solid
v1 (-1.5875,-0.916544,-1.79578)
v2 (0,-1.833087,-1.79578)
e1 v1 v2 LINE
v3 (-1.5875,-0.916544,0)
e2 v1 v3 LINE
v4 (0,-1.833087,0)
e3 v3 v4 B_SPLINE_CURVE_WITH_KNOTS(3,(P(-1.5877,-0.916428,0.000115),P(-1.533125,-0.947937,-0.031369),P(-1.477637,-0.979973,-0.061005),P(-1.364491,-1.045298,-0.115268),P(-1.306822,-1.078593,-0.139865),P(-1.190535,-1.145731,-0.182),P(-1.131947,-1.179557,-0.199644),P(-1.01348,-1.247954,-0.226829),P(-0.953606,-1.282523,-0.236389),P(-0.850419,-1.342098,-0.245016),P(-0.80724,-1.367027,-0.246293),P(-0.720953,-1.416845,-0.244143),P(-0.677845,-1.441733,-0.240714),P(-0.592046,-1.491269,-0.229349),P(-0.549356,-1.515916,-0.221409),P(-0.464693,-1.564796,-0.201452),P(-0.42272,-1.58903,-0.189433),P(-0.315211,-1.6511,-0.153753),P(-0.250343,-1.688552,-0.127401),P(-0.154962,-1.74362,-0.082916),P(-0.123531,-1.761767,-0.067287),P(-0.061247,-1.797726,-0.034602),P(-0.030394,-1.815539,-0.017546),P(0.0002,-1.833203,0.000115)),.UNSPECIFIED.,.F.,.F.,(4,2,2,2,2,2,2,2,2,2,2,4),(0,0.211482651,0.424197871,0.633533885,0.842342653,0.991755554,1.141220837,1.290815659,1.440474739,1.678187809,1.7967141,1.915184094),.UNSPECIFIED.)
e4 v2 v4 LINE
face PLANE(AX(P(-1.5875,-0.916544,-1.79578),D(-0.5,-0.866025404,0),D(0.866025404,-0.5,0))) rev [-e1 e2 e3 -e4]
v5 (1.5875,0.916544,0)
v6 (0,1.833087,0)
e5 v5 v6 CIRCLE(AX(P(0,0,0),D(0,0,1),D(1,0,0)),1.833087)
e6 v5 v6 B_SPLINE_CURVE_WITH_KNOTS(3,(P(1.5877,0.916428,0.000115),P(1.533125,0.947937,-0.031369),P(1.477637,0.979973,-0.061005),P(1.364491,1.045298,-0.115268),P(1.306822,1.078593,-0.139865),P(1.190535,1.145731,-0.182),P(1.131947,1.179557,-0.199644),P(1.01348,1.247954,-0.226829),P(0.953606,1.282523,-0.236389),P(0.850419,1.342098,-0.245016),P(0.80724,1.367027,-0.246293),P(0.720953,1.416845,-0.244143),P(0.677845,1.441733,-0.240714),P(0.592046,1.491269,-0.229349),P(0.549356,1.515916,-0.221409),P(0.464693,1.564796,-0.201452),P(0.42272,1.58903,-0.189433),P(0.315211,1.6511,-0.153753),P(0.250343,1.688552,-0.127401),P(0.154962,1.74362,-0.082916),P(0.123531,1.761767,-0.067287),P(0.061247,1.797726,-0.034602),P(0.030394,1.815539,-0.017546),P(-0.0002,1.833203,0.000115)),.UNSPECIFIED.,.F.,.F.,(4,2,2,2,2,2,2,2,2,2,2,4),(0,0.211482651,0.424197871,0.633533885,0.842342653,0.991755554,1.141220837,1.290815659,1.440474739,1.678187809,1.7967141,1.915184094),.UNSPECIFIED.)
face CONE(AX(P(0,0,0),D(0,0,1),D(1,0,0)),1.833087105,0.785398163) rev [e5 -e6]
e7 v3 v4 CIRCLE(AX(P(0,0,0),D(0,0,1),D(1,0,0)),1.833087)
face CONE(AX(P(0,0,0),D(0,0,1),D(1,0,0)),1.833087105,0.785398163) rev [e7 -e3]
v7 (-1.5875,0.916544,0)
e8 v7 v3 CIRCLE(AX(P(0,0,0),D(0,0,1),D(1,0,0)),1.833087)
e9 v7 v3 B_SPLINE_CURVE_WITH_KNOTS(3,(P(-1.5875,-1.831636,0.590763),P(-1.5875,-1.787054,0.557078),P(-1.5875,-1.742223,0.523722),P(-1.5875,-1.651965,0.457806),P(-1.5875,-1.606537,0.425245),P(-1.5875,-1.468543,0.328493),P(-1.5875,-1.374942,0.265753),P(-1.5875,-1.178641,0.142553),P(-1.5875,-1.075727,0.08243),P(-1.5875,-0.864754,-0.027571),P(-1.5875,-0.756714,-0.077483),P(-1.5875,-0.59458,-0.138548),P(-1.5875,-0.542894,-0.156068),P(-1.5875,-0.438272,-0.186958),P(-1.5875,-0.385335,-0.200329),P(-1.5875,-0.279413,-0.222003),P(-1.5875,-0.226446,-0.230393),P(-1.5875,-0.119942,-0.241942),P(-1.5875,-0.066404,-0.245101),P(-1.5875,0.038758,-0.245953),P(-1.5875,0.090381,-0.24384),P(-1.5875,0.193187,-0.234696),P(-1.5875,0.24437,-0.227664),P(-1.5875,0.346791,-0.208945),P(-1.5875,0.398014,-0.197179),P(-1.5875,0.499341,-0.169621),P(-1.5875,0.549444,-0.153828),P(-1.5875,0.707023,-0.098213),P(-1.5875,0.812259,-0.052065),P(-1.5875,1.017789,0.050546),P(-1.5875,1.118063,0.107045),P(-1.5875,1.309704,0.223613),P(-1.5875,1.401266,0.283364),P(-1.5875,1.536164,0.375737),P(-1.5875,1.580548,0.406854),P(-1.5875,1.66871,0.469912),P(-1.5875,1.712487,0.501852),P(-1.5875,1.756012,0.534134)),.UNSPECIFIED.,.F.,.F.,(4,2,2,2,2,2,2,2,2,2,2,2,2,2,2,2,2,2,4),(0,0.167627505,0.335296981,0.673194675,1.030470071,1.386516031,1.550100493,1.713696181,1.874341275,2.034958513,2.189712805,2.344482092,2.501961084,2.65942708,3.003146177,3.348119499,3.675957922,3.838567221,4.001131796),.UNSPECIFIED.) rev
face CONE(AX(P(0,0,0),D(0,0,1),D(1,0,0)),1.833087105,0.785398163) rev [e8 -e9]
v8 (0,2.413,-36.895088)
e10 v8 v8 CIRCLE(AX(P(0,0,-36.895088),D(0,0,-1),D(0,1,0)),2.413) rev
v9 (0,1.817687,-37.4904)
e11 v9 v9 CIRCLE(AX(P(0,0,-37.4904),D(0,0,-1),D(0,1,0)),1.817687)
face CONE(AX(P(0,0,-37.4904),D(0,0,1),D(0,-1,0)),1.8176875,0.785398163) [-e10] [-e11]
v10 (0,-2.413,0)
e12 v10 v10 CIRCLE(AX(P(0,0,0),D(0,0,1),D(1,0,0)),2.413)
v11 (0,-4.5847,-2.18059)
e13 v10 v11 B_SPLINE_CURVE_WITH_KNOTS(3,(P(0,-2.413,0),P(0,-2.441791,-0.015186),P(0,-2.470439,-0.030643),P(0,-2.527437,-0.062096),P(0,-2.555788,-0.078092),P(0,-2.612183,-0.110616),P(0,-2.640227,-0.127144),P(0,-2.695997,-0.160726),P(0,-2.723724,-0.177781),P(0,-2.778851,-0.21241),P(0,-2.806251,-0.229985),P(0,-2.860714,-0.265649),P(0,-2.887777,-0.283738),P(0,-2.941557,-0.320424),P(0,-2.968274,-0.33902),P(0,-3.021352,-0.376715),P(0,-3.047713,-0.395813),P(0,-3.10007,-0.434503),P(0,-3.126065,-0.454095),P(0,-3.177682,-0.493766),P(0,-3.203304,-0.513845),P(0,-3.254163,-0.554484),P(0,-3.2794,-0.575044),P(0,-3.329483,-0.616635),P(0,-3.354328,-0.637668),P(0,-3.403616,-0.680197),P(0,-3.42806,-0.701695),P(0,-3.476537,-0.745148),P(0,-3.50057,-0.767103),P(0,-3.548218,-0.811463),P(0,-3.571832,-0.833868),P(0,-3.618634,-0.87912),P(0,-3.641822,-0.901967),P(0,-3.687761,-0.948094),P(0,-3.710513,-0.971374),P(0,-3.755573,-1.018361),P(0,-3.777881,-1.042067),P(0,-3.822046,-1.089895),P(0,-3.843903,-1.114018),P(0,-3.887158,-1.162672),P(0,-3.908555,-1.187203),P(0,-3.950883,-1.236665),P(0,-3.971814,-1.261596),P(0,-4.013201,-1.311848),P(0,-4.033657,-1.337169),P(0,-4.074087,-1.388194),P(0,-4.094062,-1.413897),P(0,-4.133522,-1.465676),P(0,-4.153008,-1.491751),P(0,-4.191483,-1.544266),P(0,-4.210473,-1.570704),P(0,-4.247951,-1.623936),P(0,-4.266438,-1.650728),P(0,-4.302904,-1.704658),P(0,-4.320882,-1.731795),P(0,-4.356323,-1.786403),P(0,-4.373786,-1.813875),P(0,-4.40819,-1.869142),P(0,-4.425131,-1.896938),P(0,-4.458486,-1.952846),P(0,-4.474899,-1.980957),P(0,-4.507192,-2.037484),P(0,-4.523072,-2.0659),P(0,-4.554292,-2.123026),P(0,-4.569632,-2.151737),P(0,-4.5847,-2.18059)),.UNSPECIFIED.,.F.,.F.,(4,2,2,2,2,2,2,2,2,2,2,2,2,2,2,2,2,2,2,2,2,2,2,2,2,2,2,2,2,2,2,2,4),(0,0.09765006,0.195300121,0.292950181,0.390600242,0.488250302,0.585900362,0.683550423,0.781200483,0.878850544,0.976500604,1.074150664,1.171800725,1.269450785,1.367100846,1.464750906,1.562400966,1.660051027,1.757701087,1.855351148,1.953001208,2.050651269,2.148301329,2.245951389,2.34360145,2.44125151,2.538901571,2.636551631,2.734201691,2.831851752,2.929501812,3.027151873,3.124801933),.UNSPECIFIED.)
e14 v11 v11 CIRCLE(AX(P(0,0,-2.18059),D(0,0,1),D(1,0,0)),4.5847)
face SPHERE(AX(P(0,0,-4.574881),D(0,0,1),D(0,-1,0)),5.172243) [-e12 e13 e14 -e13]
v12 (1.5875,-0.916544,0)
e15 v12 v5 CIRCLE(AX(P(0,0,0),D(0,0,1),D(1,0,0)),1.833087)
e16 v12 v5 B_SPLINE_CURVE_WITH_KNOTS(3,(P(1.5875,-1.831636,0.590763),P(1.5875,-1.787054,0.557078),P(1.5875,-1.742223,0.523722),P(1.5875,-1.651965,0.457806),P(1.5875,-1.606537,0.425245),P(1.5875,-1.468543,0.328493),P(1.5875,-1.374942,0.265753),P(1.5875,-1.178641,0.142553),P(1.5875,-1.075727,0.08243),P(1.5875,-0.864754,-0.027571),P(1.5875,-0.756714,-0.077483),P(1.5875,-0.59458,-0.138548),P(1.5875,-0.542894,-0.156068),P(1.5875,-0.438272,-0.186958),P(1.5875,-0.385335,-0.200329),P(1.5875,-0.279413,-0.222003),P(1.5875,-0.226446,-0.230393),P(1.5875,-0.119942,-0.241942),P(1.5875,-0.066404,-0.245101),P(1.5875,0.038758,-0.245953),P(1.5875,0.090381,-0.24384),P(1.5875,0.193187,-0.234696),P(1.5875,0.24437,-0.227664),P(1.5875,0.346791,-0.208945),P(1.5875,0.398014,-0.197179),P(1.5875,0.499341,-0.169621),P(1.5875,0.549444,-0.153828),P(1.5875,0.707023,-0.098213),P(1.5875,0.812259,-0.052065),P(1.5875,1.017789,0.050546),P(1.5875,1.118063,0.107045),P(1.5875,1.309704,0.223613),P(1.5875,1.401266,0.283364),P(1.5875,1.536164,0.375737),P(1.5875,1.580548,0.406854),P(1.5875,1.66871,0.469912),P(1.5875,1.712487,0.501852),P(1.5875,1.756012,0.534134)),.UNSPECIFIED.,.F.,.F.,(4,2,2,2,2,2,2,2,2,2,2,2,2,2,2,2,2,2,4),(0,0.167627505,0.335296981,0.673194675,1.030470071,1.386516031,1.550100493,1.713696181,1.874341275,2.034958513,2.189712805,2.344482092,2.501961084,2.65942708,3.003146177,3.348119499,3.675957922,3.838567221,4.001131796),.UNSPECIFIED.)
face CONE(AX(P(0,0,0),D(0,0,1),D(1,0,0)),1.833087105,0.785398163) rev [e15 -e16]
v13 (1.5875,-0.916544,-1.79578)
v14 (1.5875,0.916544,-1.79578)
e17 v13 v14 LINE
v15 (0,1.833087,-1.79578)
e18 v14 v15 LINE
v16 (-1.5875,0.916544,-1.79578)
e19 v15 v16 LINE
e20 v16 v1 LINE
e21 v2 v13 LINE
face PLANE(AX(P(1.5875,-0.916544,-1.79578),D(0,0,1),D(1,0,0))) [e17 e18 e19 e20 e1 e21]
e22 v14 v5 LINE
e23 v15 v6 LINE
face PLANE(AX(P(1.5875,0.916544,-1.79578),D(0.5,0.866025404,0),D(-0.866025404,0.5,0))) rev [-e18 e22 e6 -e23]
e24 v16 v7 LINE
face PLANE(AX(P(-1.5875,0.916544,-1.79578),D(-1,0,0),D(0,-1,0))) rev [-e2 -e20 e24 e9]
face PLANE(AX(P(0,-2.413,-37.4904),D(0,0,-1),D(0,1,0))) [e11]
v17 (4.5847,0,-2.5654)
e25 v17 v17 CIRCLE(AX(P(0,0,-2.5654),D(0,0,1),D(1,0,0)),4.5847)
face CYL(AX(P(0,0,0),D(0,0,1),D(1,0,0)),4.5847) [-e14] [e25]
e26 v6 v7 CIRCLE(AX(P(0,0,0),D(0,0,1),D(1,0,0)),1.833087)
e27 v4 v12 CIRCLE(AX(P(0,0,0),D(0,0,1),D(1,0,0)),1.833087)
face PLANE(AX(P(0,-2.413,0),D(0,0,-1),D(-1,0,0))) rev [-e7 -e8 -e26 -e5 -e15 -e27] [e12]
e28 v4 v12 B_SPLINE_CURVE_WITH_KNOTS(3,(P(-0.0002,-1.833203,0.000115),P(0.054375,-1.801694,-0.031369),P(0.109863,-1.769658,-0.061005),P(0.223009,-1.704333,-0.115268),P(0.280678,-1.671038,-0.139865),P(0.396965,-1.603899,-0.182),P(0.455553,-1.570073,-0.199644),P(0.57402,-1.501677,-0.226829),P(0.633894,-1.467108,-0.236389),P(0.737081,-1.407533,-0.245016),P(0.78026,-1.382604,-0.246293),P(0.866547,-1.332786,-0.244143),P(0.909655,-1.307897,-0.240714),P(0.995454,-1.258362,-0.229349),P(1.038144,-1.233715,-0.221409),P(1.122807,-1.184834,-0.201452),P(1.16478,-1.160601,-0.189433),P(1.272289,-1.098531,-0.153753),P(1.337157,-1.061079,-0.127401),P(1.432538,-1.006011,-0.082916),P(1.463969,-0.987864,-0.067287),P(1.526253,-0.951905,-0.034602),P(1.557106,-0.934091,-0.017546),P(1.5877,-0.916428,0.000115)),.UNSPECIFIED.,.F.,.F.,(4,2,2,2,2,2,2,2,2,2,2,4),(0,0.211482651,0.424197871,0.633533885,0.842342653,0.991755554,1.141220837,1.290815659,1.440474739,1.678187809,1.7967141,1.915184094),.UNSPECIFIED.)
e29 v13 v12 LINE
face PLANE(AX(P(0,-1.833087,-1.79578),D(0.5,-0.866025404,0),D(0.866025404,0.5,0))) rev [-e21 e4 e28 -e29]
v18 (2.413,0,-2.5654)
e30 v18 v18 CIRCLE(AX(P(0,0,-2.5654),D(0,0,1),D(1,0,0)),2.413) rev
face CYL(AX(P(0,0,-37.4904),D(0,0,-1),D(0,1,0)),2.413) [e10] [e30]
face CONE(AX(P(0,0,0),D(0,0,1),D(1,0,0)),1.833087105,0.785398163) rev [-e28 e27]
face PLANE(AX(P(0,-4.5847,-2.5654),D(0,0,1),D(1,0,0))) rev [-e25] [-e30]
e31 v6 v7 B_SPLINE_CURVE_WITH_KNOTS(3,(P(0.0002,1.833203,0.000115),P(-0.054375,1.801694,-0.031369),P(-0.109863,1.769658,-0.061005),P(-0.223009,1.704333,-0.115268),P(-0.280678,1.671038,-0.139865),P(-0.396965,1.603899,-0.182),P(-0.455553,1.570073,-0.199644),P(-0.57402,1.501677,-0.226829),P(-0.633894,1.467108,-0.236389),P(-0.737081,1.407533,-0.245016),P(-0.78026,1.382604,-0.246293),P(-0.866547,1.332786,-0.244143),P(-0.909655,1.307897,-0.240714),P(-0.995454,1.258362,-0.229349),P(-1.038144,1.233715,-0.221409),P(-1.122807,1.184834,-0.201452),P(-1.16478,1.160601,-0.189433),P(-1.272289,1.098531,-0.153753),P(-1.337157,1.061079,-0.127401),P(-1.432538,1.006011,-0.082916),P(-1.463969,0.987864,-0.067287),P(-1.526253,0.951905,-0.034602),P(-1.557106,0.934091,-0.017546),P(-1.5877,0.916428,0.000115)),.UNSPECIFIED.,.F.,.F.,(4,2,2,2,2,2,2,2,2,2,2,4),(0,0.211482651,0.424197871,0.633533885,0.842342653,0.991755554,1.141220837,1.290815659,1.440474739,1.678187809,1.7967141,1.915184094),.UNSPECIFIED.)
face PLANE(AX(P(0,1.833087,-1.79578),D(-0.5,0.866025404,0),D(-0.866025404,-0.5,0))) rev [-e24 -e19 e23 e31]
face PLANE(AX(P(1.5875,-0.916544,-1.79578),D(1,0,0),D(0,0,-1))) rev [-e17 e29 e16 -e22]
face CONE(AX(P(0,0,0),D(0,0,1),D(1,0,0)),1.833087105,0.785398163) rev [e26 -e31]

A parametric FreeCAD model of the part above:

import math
import FreeCAD as App
import Part
import Sketcher
from FreeCAD import Vector
Q = App.Units.Quantity


def edges_at(feature, points):
    """Names of the edges that pass closest to the given points."""
    edges = feature.Shape.Edges
    near = lambda p: min(range(len(edges)), key=lambda i: edges[i].distToShape(Part.Vertex(*p))[0])
    return sorted({f"Edge{near(p) + 1}" for p in points})


def add_polygon(sketch, points):
    """Adds a closed chain of lines whose ends are joined by coincident constraints."""
    first, n = sketch.GeometryCount, len(points)
    for a, b in zip(points, points[1:] + points[:1]):
        sketch.addGeometry(Part.LineSegment(App.Vector(*a, 0), App.Vector(*b, 0)), False)
    for i in range(n):
        sketch.addConstraint(Sketcher.Constraint("Coincident", first + i, 2, first + (i + 1) % n, 1))

doc = App.newDocument("Part")
params = doc.addObject("Spreadsheet::Sheet", "Params")
for row, (alias, value) in enumerate([
    ("sketch1_width", "0.095 in"),
    ("sketch1_height", "1.375 in"),
    ("revolution_angle", "360 deg"),
    ("chamfer_size", "0.595313 mm"),
    ("sketch2_width", "0.095 in"),
    ("sketch2_height", "0.101 in"),
    ("revolution2_angle", "360 deg"),
    ("pocket1_length", "0.0707 in"),
    ("pocket2_length", "0.0707 in"),
    ("pocket2_taper", "-45 deg"),
], start=1):
    params.set(f"A{row}", alias)
    params.set(f"B{row}", "=" + value)
    params.setAlias(f"B{row}", alias)

body = doc.addObject("PartDesign::Body", "Body")

# Sketch on YZ plane
sketch1 = body.newObject("Sketcher::SketchObject", "Sketch")
sketch1.AttachmentSupport = (doc.getObject("YZ_Plane"), [""])
sketch1.MapMode = "FlatFace"
add_polygon(sketch1, [(2.413, -2.5654), (0, -2.5654), (0, -37.4904), (2.413, -37.4904)])  # lines 0-3
sketch1.addConstraint([
    Sketcher.Constraint("Horizontal", 0),
    Sketcher.Constraint("Vertical", 1),
    Sketcher.Constraint("Horizontal", 2),
    Sketcher.Constraint("Vertical", 3),
    Sketcher.Constraint("PointOnObject", 0, 2, -2),
    Sketcher.Constraint("DistanceX", 0, 2, 0, 1, Q("0.095 in")),
    Sketcher.Constraint("DistanceY", 1, 2, 1, 1, Q("1.375 in")),
    Sketcher.Constraint("DistanceY", 0, 2, -1, 1, Q("0.101 in")),
])
sketch1.setExpression("Constraints[9]", "Params.sketch1_width")
sketch1.setExpression("Constraints[10]", "Params.sketch1_height")
revolution = body.newObject("PartDesign::Revolution", "Revolution")
revolution.Profile = sketch1
revolution.ReferenceAxis = (sketch1, ["V_Axis"])
revolution.setExpression("Angle", "Params.revolution_angle")
doc.recompute()

chamfer = body.newObject("PartDesign::Chamfer", "Chamfer")
chamfer.Base = (revolution, edges_at(revolution, [(0, -2.413, -37.49)]))
chamfer.setExpression("Size", "Params.chamfer_size")

# Sketch on YZ plane
sketch2 = body.newObject("Sketcher::SketchObject", "Sketch001")
sketch2.AttachmentSupport = (doc.getObject("YZ_Plane"), [""])
sketch2.MapMode = "FlatFace"
sketch2.addGeometry([
    Part.LineSegment(Vector(4.5847, -2.5654, 0), Vector(4.5847, -2.18059, 0)),  # 0
    Part.ArcOfCircle(Part.Circle(Vector(0, -4.574881, 0), Vector(0, 0, 1), 5.172243), math.radians(27.575137), math.radians(62.190798)),  # 1
    Part.LineSegment(Vector(2.413, 0, 0), Vector(0, 0, 0)),  # 2
    Part.LineSegment(Vector(0, 0, 0), Vector(0, -2.5654, 0)),  # 3
    Part.LineSegment(Vector(0, -2.5654, 0), Vector(4.5847, -2.5654, 0)),  # 4
], False)
sketch2.addConstraint([
    Sketcher.Constraint("Coincident", 0, 2, 1, 1),
    Sketcher.Constraint("Coincident", 1, 2, 2, 1),
    Sketcher.Constraint("Coincident", 2, 2, 3, 1),
    Sketcher.Constraint("Coincident", 3, 2, 4, 1),
    Sketcher.Constraint("Coincident", 4, 2, 0, 1),
    Sketcher.Constraint("Vertical", 0),
    Sketcher.Constraint("Horizontal", 2),
    Sketcher.Constraint("Vertical", 3),
    Sketcher.Constraint("Horizontal", 4),
    Sketcher.Constraint("Coincident", 2, 2, -1, 1),
    Sketcher.Constraint("PointOnObject", 1, 3, -2),
    Sketcher.Constraint("DistanceX", 2, 2, 2, 1, Q("0.095 in")),
    Sketcher.Constraint("DistanceY", 3, 2, 3, 1, Q("0.101 in")),
    Sketcher.Constraint("DistanceX", 4, 1, 4, 2, Q("0.1805 in")),
    Sketcher.Constraint("Radius", 1, 5.172243),
])
sketch2.setExpression("Constraints[11]", "Params.sketch2_width")
sketch2.setExpression("Constraints[12]", "Params.sketch2_height")
revolution2 = body.newObject("PartDesign::Revolution", "Revolution001")
revolution2.Profile = sketch2
revolution2.ReferenceAxis = (sketch2, ["V_Axis"])
revolution2.setExpression("Angle", "Params.revolution2_angle")

# Sketch on XY plane
sketch3 = body.newObject("Sketcher::SketchObject", "Sketch002")
sketch3.AttachmentSupport = (doc.getObject("XY_Plane"), [""])
sketch3.MapMode = "FlatFace"
add_polygon(sketch3, [(1.5875, -0.916544), (1.5875, 0.916544), (0, 1.833087), (-1.5875, 0.916544), (-1.5875, -0.916544), (0, -1.833087)])  # lines 0-5
sketch3.addConstraint([
    Sketcher.Constraint("Vertical", 0),
    Sketcher.Constraint("Vertical", 3),
    Sketcher.Constraint("Symmetric", 0, 2, 3, 2, -1, 1),
    Sketcher.Constraint("Symmetric", 1, 2, 4, 2, -1, 1),
    Sketcher.Constraint("PointOnObject", 1, 2, -2),
    Sketcher.Constraint("Parallel", 2, 5),
    Sketcher.Constraint("Horizontal", 0, 2, 2, 2),
    Sketcher.Constraint("Angle", 1, Q("150 deg")),
    Sketcher.Constraint("DistanceX", -1, 1, 0, 2, Q("0.0625 in")),
    Sketcher.Constraint("DistanceY", 0, 1, 0, 2, 1.833087),
])
pocket1 = body.newObject("PartDesign::Pocket", "Pocket")
pocket1.Profile = sketch3
pocket1.setExpression("Length", "Params.pocket1_length")

# Sketch on XY plane
sketch4 = body.newObject("Sketcher::SketchObject", "Sketch003")
sketch4.AttachmentSupport = (doc.getObject("XY_Plane"), [""])
sketch4.MapMode = "FlatFace"
sketch4.addGeometry(Part.Circle(Vector(0, 0, 0), Vector(0, 0, 1), 1.833087), False)
sketch4.addConstraint([
    Sketcher.Constraint("Coincident", 0, 3, -1, 1),
    Sketcher.Constraint("Diameter", 0, 3.666174),
])
pocket2 = body.newObject("PartDesign::Pocket", "Pocket001")
pocket2.Profile = sketch4
pocket2.setExpression("Length", "Params.pocket2_length")
pocket2.setExpression("TaperAngle", "Params.pocket2_taper")

doc.recompute()
